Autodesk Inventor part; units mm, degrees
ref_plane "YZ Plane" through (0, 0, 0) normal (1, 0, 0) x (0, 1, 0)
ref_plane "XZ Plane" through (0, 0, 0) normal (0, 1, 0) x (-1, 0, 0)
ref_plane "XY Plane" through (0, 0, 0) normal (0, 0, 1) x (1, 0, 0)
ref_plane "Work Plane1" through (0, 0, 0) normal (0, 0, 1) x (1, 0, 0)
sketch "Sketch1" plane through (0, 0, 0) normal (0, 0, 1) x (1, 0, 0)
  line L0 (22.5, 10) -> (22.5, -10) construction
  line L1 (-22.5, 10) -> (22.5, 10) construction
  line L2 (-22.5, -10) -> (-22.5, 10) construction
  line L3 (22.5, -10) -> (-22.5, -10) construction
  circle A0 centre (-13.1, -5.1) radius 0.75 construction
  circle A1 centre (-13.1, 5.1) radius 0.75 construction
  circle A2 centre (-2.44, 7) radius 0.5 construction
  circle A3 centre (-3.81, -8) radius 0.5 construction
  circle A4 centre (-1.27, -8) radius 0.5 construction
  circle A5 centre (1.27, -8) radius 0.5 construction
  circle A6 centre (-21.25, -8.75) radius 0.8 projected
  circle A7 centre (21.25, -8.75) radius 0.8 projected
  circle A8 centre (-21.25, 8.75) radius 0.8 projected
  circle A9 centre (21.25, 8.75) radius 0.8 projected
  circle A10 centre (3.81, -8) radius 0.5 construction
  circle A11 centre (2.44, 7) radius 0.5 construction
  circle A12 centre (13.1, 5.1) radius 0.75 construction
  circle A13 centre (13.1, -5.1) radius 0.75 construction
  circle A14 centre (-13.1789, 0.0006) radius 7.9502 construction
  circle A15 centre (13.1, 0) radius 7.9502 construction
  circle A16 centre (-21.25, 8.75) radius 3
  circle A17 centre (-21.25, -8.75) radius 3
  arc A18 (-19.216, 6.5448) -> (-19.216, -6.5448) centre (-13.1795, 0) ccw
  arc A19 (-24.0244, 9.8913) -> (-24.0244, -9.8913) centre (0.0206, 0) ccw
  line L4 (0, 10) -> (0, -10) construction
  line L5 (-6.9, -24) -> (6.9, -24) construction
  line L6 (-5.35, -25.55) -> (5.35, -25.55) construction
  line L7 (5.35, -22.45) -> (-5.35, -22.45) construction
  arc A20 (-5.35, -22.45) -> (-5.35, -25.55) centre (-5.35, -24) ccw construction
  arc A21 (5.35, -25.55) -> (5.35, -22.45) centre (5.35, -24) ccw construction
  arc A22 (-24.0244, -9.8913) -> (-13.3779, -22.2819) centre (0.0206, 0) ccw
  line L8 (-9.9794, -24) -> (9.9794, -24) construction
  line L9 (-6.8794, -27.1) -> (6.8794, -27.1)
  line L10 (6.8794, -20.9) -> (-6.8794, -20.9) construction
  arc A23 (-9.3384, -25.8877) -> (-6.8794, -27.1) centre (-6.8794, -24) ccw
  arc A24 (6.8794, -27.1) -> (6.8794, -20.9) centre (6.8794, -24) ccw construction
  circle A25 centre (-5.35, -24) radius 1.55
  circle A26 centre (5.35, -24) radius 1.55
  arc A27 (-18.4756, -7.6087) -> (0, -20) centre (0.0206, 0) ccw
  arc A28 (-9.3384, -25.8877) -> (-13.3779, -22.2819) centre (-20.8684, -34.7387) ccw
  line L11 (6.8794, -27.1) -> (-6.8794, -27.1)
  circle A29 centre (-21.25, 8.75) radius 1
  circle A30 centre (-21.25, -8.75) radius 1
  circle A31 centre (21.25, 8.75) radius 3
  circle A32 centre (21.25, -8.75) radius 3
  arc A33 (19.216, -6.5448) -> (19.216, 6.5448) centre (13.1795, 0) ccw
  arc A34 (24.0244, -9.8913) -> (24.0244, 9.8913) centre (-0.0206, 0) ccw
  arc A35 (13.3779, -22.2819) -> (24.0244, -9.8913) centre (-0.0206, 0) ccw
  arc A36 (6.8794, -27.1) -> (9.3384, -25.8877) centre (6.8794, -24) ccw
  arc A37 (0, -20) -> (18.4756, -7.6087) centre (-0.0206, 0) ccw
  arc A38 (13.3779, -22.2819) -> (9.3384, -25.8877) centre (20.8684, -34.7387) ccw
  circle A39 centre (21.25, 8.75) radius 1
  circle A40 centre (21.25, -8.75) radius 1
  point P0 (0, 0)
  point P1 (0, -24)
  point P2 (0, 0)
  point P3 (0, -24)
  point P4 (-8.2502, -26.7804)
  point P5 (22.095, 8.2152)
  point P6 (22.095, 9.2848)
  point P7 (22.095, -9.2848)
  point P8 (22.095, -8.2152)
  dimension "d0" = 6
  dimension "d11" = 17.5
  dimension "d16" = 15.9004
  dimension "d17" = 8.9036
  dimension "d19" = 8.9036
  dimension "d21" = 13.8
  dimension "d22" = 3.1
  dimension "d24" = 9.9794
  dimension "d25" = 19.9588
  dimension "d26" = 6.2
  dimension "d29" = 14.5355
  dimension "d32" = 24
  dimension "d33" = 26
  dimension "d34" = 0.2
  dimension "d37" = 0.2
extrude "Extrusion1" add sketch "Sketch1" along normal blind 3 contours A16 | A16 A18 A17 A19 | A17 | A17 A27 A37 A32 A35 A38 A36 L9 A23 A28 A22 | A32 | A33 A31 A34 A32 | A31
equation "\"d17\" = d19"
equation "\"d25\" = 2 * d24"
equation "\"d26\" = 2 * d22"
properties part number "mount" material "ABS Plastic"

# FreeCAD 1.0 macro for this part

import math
import FreeCAD as App
import Part
import Sketcher
from FreeCAD import Vector
Q = App.Units.Quantity

doc = App.newDocument("Part")
body = doc.addObject("PartDesign::Body", "Body")

# Sketch on XY plane
sketch1 = body.newObject("Sketcher::SketchObject", "Sketch")
sketch1.AttachmentSupport = (doc.getObject("XY_Plane"), [""])
sketch1.MapMode = "FlatFace"
sketch1.addGeometry(Part.ArcOfCircle(Part.Circle(Vector(-21.25, 8.75, 0), Vector(0, 0, 1), 3), math.radians(-47.312632), math.radians(157.639291)), False)
sketch1.addGeometry(Part.ArcOfCircle(Part.Circle(Vector(0.0206, 0, 0), Vector(0, 0, 1), 25.999997), math.radians(157.639391), math.radians(202.360609)), False)
sketch1.addGeometry(Part.ArcOfCircle(Part.Circle(Vector(0.0206, 0, 0), Vector(0, 0, 1), 25.999997), math.radians(-157.639391), math.radians(-121.019236)), False)
sketch1.addGeometry(Part.ArcOfCircle(Part.Circle(Vector(-20.86721, -34.737595, 0), Vector(0, 0, 1), 14.533896), math.radians(37.511034), math.radians(58.982518)), False)
sketch1.addGeometry(Part.ArcOfCircle(Part.Circle(Vector(-6.8794, -24, 0), Vector(0, 0, 1), 3.100015), math.radians(-142.48764), math.radians(-90)), False)
sketch1.addGeometry(Part.LineSegment(Vector(-6.8794, -27.1, 0), Vector(6.8794, -27.1, 0)), False)
sketch1.addGeometry(Part.ArcOfCircle(Part.Circle(Vector(6.8794, -24, 0), Vector(0, 0, 1), 3.1), math.radians(-90), math.radians(-37.51236)), False)
sketch1.addGeometry(Part.ArcOfCircle(Part.Circle(Vector(20.869363, -34.740007, 0), Vector(0, 0, 1), 14.537072), math.radians(121.019856), math.radians(142.486592)), False)
sketch1.addGeometry(Part.ArcOfCircle(Part.Circle(Vector(-0.0206, 0, 0), Vector(0, 0, 1), 25.999997), math.radians(-58.980764), math.radians(-22.360609)), False)
sketch1.addGeometry(Part.ArcOfCircle(Part.Circle(Vector(-0.0206, 0, 0), Vector(0, 0, 1), 25.999997), math.radians(-22.360609), math.radians(22.360609)), False)
sketch1.addGeometry(Part.ArcOfCircle(Part.Circle(Vector(21.25, 8.75, 0), Vector(0, 0, 1), 3), math.radians(22.360709), math.radians(227.312632)), False)
sketch1.addGeometry(Part.ArcOfCircle(Part.Circle(Vector(13.1795, 0, 0), Vector(0, 0, 1), 8.90358), math.radians(-47.313562), math.radians(47.313562)), False)
sketch1.addGeometry(Part.ArcOfCircle(Part.Circle(Vector(21.25, -8.75, 0), Vector(0, 0, 1), 3), math.radians(132.687368), math.radians(157.639291)), False)
sketch1.addGeometry(Part.ArcOfCircle(Part.Circle(Vector(-0.0206, 0, 0), Vector(0, 0, 1), 20.000011), math.radians(-89.940985), math.radians(-22.360579)), False)
sketch1.addGeometry(Part.ArcOfCircle(Part.Circle(Vector(0.0206, 0, 0), Vector(0, 0, 1), 20.000043), math.radians(-157.639421), math.radians(-90.059015)), False)
sketch1.addGeometry(Part.ArcOfCircle(Part.Circle(Vector(-21.25, -8.75, 0), Vector(0, 0, 1), 3), math.radians(22.360709), math.radians(47.312632)), False)
sketch1.addGeometry(Part.ArcOfCircle(Part.Circle(Vector(-13.1795, 0, 0), Vector(0, 0, 1), 8.90358), math.radians(132.686438), math.radians(227.313562)), False)
sketch1.addGeometry(Part.Circle(Vector(-21.25, 8.75, 0), Vector(0, 0, 1), 1), False)
sketch1.addGeometry(Part.Circle(Vector(-21.25, -8.75, 0), Vector(0, 0, 1), 1), False)
sketch1.addGeometry(Part.Circle(Vector(-5.35, -24, 0), Vector(0, 0, 1), 1.55), False)
sketch1.addGeometry(Part.Circle(Vector(5.35, -24, 0), Vector(0, 0, 1), 1.55), False)
sketch1.addGeometry(Part.Circle(Vector(21.25, -8.75, 0), Vector(0, 0, 1), 1), False)
sketch1.addGeometry(Part.Circle(Vector(21.25, 8.75, 0), Vector(0, 0, 1), 1), False)
sketch1.addConstraint(Sketcher.Constraint("Coincident", 0, 2, 1, 1))
sketch1.addConstraint(Sketcher.Constraint("Coincident", 1, 2, 2, 1))
sketch1.addConstraint(Sketcher.Constraint("Coincident", 2, 2, 3, 2))
sketch1.addConstraint(Sketcher.Constraint("Coincident", 3, 1, 4, 1))
sketch1.addConstraint(Sketcher.Constraint("Coincident", 4, 2, 5, 1))
sketch1.addConstraint(Sketcher.Constraint("Coincident", 5, 2, 6, 1))
sketch1.addConstraint(Sketcher.Constraint("Coincident", 6, 2, 7, 2))
sketch1.addConstraint(Sketcher.Constraint("Coincident", 7, 1, 8, 1))
sketch1.addConstraint(Sketcher.Constraint("Coincident", 8, 2, 9, 1))
sketch1.addConstraint(Sketcher.Constraint("Coincident", 9, 2, 10, 1))
sketch1.addConstraint(Sketcher.Constraint("Coincident", 10, 2, 11, 2))
sketch1.addConstraint(Sketcher.Constraint("Coincident", 11, 1, 12, 1))
sketch1.addConstraint(Sketcher.Constraint("Coincident", 12, 2, 13, 2))
sketch1.addConstraint(Sketcher.Constraint("Coincident", 13, 1, 14, 2))
sketch1.addConstraint(Sketcher.Constraint("Coincident", 14, 1, 15, 1))
sketch1.addConstraint(Sketcher.Constraint("Coincident", 15, 2, 16, 2))
sketch1.addConstraint(Sketcher.Constraint("Coincident", 16, 1, 0, 1))
sketch1.addConstraint(Sketcher.Constraint("Horizontal", 5))
sketch1.addConstraint(Sketcher.Constraint("Coincident", 2, 3, 1, 3))
sketch1.addConstraint(Sketcher.Constraint("Coincident", 9, 3, 8, 3))
sketch1.addConstraint(Sketcher.Constraint("Coincident", 13, 3, 8, 3))
sketch1.addConstraint(Sketcher.Constraint("Coincident", 14, 3, 1, 3))
sketch1.addConstraint(Sketcher.Constraint("Coincident", 17, 3, 0, 3))
sketch1.addConstraint(Sketcher.Constraint("Coincident", 18, 3, 15, 3))
sketch1.addConstraint(Sketcher.Constraint("Coincident", 21, 3, 12, 3))
sketch1.addConstraint(Sketcher.Constraint("Coincident", 22, 3, 10, 3))
sketch1.addConstraint(Sketcher.Constraint("PointOnObject", 1, 3, -1))
sketch1.addConstraint(Sketcher.Constraint("PointOnObject", 8, 3, -1))
sketch1.addConstraint(Sketcher.Constraint("PointOnObject", 11, 3, -1))
sketch1.addConstraint(Sketcher.Constraint("PointOnObject", 16, 3, -1))
sketch1.addConstraint(Sketcher.Constraint("PointOnObject", 13, 1, -2))
sketch1.addConstraint(Sketcher.Constraint("Radius", 0, Q("3 mm")))
sketch1.addConstraint(Sketcher.Constraint("Radius", 1, Q("26 mm")))
sketch1.addConstraint(Sketcher.Constraint("Radius", 8, Q("26 mm")))
sketch1.addConstraint(Sketcher.Constraint("Radius", 10, Q("3 mm")))
sketch1.addConstraint(Sketcher.Constraint("Radius", 12, Q("3 mm")))
sketch1.addConstraint(Sketcher.Constraint("Radius", 15, Q("3 mm")))
sketch1.addConstraint(Sketcher.Constraint("Diameter", 19, Q("3.1 mm")))
sketch1.addConstraint(Sketcher.Constraint("Diameter", 20, Q("3.1 mm")))
sketch1.addConstraint(Sketcher.Constraint("Radius", 4, Q("3.1 mm")))
sketch1.addConstraint(Sketcher.Constraint("Radius", 6, Q("3.1 mm")))
sketch1.addConstraint(Sketcher.Constraint("Diameter", 17, Q("2 mm")))
sketch1.addConstraint(Sketcher.Constraint("Diameter", 18, Q("2 mm")))
sketch1.addConstraint(Sketcher.Constraint("Diameter", 21, Q("2 mm")))
sketch1.addConstraint(Sketcher.Constraint("Diameter", 22, Q("2 mm")))
sketch1.addConstraint(Sketcher.Constraint("DistanceY", 4, 3, -1, 1, Q("24 mm")))
sketch1.addConstraint(Sketcher.Constraint("DistanceY", 19, 3, -1, 1, Q("24 mm")))
sketch1.addConstraint(Sketcher.Constraint("DistanceY", 20, 3, -1, 1, Q("24 mm")))
sketch1.addConstraint(Sketcher.Constraint("Radius", 13, Q("20 mm")))
sketch1.addConstraint(Sketcher.Constraint("Radius", 11, Q("8.9036 mm")))
sketch1.addConstraint(Sketcher.Constraint("Radius", 16, Q("8.9036 mm")))
sketch1.addConstraint(Sketcher.Constraint("DistanceY", 12, 3, 10, 3, Q("17.5 mm")))
sketch1.addConstraint(Sketcher.Constraint("DistanceY", 15, 3, 0, 3, Q("17.5 mm")))
sketch1.addConstraint(Sketcher.Constraint("DistanceX", 15, 3, 19, 3, Q("15.9 mm")))
sketch1.addConstraint(Sketcher.Constraint("DistanceX", 20, 3, 12, 3, Q("15.9 mm")))
sketch1.addConstraint(Sketcher.Constraint("Radius", 3, Q("14.534 mm")))
sketch1.addConstraint(Sketcher.Constraint("Radius", 7, Q("14.537 mm")))
sketch1.addConstraint(Sketcher.Constraint("DistanceX", 4, 3, 1, 3, Q("6.9 mm")))
sketch1.addConstraint(Sketcher.Constraint("DistanceX", 8, 3, 6, 3, Q("6.9 mm")))
sketch1.addConstraint(Sketcher.Constraint("DistanceX", 19, 3, 20, 3, Q("10.7 mm")))
sketch1.addConstraint(Sketcher.Constraint("DistanceX", 0, 3, -1, 1, Q("21.25 mm")))
sketch1.addConstraint(Sketcher.Constraint("DistanceY", 3, 3, 3, 1, Q("8.85 mm")))
sketch1.addConstraint(Sketcher.Constraint("DistanceX", 5, 1, 5, 2, Q("13.7588 mm")))
sketch1.addConstraint(Sketcher.Constraint("DistanceX", -1, 1, 7, 1, Q("13.378 mm")))
sketch1.addConstraint(Sketcher.Constraint("DistanceX", -1, 1, 10, 2, Q("19.216 mm")))
sketch1.addConstraint(Sketcher.Constraint("DistanceX", -1, 1, 11, 1, Q("19.216 mm")))
sketch1.addConstraint(Sketcher.Constraint("DistanceX", 15, 2, -1, 1, Q("19.216 mm")))
sketch1.addConstraint(Sketcher.Constraint("DistanceX", 16, 1, -1, 1, Q("19.216 mm")))
sketch1.addConstraint(Sketcher.Constraint("DistanceX", 0, 2, 16, 3, Q("10.845 mm")))
sketch1.addConstraint(Sketcher.Constraint("DistanceX", 1, 2, 16, 3, Q("10.845 mm")))
sketch1.addConstraint(Sketcher.Constraint("DistanceX", 3, 1, 4, 2, Q("2.459 mm")))
sketch1.addConstraint(Sketcher.Constraint("DistanceX", 5, 2, 6, 2, Q("2.459 mm")))
sketch1.addConstraint(Sketcher.Constraint("DistanceX", 11, 3, 8, 2, Q("10.845 mm")))
sketch1.addConstraint(Sketcher.Constraint("DistanceX", 11, 3, 9, 2, Q("10.845 mm")))
sketch1.addConstraint(Sketcher.Constraint("DistanceY", 12, 2, 11, 1, Q("1.064 mm")))
sketch1.addConstraint(Sketcher.Constraint("DistanceX", 14, 1, 16, 3, Q("5.296 mm")))
sketch1.addConstraint(Sketcher.Constraint("DistanceX", 2, 2, -1, 1, Q("13.3779 mm")))
pad1 = body.newObject("PartDesign::Pad", "Pad")
pad1.Profile = sketch1
pad1.Length = 3

doc.recompute()
